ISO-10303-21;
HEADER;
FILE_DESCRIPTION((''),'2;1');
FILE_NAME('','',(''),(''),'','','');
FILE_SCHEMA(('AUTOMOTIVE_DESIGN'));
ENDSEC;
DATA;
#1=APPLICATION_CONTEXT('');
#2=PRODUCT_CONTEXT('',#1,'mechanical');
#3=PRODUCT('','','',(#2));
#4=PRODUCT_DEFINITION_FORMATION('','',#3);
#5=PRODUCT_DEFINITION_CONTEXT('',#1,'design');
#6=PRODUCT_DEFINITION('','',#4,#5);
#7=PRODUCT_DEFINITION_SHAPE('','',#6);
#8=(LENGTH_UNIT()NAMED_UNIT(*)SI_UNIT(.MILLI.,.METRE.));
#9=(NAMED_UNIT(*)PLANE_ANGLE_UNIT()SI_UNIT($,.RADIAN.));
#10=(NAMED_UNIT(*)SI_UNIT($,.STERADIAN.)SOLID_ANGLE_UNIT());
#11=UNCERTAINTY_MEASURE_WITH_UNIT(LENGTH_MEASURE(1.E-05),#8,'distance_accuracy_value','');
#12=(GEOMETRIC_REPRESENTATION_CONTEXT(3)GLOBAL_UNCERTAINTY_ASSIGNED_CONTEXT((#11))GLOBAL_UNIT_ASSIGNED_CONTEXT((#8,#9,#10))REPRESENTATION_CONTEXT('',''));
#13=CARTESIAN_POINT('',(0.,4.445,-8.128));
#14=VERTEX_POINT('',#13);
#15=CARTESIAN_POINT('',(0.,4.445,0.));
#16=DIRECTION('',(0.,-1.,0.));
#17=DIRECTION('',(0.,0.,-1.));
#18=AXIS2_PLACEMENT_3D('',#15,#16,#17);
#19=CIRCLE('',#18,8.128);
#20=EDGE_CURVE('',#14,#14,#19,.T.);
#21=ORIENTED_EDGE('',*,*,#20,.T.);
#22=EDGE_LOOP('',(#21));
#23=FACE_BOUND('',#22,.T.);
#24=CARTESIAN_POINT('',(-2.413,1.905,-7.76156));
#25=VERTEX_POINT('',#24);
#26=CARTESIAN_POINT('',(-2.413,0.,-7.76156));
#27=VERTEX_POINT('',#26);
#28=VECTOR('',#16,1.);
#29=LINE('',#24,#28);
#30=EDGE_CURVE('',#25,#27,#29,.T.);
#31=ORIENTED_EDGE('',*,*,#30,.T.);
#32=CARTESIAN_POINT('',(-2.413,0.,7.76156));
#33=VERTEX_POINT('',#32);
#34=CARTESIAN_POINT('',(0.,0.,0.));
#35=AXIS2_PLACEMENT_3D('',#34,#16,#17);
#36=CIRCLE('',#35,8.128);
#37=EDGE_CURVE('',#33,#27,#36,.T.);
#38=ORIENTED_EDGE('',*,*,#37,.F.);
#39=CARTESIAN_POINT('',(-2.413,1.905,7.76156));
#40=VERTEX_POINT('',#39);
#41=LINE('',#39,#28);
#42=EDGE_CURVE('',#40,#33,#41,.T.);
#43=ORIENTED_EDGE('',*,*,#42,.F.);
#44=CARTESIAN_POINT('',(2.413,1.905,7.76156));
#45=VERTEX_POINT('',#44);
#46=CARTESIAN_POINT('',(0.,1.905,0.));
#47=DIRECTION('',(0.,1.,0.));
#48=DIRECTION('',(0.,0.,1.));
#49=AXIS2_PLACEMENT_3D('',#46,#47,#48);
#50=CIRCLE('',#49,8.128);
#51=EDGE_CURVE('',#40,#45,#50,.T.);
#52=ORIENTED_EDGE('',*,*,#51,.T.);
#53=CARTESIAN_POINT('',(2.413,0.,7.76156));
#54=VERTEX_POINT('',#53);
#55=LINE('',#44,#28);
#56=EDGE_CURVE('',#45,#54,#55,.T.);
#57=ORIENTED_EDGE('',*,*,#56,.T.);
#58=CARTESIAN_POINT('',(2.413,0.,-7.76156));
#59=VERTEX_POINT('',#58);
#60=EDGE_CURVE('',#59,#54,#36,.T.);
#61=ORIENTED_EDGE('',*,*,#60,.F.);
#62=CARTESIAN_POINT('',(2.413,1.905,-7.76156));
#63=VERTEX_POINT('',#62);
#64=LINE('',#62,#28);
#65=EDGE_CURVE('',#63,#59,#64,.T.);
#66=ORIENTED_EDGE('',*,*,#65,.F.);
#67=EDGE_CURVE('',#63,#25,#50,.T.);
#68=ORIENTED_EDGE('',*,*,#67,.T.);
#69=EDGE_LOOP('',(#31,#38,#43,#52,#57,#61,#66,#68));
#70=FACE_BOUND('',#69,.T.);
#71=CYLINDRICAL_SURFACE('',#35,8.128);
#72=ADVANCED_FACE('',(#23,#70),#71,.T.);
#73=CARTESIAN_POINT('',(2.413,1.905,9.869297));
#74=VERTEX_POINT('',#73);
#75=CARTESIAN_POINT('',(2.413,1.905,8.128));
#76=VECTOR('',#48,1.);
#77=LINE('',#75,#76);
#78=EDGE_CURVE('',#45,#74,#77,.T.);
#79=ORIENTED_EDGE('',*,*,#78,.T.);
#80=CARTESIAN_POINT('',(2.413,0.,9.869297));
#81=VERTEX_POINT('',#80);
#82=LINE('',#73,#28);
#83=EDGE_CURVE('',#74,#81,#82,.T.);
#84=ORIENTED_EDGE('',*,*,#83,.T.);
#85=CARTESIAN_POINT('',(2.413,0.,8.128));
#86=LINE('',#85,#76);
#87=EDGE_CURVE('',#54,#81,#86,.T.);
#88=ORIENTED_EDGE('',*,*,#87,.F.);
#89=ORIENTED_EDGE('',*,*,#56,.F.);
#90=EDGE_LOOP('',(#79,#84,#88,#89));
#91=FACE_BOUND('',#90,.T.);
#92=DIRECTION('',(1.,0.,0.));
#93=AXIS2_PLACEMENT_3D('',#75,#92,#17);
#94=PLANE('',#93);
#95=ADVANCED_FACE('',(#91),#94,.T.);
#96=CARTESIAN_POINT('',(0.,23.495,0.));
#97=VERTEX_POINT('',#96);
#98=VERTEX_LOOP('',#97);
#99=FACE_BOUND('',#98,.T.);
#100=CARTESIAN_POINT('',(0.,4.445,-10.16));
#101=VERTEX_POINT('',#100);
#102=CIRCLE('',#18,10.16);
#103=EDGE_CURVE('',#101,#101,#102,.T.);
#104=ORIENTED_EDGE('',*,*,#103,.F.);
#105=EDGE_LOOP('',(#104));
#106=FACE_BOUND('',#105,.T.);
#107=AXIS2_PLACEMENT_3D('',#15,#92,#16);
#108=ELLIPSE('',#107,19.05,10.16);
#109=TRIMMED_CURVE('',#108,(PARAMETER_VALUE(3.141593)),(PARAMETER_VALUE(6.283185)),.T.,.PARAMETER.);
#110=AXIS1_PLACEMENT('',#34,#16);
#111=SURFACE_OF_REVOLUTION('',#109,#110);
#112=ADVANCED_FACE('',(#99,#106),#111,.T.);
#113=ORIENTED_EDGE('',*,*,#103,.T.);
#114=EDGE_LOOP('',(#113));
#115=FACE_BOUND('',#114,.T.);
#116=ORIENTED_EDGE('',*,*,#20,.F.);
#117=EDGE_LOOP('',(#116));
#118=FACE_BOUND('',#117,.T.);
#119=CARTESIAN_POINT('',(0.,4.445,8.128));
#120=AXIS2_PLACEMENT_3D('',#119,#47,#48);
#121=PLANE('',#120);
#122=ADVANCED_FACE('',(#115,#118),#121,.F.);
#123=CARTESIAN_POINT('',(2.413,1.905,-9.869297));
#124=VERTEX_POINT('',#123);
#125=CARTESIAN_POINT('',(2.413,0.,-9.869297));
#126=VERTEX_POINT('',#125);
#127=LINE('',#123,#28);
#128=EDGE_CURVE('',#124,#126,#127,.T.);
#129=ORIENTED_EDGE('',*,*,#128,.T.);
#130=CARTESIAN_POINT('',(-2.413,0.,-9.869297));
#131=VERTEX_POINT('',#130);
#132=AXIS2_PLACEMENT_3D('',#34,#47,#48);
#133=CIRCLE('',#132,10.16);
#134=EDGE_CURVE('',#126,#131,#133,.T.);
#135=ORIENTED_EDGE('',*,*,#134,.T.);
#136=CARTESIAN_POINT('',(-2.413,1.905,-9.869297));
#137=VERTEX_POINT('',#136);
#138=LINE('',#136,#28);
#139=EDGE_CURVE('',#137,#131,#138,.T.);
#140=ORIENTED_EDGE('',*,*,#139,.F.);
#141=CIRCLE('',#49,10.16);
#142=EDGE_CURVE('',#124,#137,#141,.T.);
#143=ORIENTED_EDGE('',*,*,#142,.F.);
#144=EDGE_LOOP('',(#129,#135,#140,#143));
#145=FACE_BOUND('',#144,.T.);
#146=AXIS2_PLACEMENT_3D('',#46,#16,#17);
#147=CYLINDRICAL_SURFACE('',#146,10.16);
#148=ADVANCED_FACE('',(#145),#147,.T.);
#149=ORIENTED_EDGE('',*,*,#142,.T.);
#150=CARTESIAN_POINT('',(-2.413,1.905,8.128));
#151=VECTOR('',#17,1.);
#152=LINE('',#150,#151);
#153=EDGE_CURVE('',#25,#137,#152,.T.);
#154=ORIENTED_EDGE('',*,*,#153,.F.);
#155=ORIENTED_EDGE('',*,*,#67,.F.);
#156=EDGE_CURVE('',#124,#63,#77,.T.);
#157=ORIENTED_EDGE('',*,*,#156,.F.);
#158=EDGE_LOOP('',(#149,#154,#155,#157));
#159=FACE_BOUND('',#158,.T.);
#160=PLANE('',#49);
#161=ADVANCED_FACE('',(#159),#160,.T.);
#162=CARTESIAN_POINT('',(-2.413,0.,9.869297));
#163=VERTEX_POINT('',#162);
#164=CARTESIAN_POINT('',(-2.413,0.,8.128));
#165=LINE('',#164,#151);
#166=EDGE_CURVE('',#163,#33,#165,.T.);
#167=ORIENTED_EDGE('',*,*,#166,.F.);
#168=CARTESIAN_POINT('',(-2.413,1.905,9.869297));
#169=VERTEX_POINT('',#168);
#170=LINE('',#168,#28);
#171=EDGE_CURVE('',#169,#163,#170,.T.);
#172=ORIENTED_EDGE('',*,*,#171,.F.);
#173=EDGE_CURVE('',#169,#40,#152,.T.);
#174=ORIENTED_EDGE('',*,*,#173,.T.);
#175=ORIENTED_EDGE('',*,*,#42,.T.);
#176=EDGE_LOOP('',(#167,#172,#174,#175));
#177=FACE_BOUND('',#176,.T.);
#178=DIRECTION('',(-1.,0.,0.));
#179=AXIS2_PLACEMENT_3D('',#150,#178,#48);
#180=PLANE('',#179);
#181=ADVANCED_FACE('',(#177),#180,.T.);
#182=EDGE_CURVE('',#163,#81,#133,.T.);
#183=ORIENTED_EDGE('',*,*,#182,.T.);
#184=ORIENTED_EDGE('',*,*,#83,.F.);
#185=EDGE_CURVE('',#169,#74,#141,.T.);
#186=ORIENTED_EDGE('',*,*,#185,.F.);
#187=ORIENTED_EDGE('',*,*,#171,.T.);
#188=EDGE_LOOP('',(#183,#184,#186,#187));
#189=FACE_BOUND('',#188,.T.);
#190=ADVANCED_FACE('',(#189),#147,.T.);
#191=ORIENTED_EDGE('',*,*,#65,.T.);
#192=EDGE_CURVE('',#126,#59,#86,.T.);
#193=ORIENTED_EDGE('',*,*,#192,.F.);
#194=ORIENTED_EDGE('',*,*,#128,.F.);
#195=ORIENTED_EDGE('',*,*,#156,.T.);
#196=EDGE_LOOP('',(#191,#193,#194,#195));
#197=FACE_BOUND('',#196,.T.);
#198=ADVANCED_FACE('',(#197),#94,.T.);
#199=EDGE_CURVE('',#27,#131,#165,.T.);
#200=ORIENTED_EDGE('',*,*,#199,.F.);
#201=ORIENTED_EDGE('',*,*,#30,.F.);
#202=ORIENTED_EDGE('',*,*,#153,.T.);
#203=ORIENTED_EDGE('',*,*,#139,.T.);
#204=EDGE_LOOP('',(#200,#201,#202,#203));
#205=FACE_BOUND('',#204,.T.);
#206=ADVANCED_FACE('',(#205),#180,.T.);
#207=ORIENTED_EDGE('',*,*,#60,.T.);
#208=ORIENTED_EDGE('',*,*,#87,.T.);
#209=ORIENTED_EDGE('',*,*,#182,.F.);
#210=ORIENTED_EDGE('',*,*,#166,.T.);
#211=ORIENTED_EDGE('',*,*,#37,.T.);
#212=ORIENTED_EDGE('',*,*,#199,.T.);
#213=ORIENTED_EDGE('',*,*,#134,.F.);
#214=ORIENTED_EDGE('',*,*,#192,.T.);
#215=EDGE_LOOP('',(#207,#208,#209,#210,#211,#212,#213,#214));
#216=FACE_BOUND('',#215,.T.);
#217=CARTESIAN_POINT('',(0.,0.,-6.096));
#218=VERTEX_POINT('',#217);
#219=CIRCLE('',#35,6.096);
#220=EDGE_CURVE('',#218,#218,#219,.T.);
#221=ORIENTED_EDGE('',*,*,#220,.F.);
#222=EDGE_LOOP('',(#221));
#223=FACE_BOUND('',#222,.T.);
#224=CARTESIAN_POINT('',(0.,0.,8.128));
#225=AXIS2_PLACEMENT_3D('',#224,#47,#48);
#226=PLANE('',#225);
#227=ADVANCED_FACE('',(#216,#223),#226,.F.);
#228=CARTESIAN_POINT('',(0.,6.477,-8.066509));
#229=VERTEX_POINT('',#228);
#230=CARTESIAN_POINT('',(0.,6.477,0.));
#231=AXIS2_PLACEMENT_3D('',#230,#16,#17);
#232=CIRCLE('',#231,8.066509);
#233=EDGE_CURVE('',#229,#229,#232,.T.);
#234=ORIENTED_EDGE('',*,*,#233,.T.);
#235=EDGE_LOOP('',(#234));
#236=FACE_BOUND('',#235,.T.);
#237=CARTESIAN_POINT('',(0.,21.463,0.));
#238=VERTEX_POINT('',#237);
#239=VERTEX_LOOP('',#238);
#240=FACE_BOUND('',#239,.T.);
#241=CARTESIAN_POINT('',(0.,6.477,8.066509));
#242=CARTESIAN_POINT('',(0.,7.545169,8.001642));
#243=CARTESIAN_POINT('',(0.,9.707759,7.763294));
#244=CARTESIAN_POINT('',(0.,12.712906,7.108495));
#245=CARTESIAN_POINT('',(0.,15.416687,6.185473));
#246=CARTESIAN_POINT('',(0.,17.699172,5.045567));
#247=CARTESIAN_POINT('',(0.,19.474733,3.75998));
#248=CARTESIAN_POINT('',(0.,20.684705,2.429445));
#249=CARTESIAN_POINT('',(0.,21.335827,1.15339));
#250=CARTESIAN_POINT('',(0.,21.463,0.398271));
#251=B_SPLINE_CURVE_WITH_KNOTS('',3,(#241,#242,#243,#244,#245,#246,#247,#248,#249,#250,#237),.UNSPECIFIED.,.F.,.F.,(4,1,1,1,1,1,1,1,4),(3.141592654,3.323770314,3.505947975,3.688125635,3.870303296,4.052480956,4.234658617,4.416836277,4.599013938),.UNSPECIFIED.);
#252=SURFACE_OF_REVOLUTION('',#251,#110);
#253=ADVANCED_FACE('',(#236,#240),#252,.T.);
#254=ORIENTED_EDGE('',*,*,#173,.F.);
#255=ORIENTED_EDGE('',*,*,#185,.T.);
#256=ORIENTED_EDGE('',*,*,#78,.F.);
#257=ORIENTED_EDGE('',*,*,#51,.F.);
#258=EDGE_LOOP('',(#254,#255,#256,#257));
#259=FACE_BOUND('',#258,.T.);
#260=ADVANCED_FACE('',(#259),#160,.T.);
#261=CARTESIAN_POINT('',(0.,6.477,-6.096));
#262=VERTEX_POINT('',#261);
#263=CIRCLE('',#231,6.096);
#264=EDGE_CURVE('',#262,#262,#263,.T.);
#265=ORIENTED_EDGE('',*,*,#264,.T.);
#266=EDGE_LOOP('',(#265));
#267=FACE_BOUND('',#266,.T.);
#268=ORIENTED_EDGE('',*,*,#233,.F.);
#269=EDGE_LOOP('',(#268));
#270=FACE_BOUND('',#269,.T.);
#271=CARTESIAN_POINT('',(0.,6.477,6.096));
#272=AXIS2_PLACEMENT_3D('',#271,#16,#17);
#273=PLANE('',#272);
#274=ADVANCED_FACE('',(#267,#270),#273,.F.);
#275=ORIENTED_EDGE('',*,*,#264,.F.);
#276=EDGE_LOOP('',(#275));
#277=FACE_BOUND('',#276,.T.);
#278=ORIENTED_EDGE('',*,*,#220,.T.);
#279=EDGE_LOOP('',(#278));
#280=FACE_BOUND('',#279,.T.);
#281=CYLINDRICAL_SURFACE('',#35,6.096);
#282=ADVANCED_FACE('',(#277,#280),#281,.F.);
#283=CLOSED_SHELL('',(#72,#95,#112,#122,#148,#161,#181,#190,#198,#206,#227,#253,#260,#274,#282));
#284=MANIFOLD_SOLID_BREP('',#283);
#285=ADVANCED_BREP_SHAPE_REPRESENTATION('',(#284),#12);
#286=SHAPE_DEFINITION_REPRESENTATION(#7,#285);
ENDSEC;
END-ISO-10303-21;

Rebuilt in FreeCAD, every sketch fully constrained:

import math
import FreeCAD as App
import Part
import Sketcher
Q = App.Units.Quantity

doc = App.newDocument("Part")
params = doc.addObject("Spreadsheet::Sheet", "Params")
for row, (alias, value) in enumerate([
    ("sketch1_height", "0.08 in"),
    ("sketch1_height2", "0.08 in"),
    ("revolution_angle", "360 deg"),
    ("sketch2_radius", "0.4 in"),
    ("sketch2_radius2", "0.32 in"),
    ("pad1_length", "0.075 in"),
], start=1):
    params.set(f"A{row}", alias)
    params.set(f"B{row}", "=" + value)
    params.setAlias(f"B{row}", alias)

body = doc.addObject("PartDesign::Body", "Body")

# Sketch on YZ plane
sketch1 = body.newObject("Sketcher::SketchObject", "Sketch")
sketch1.AttachmentSupport = (doc.getObject("YZ_Plane"), [""])
sketch1.MapMode = "FlatFace"
sketch1.addGeometry([
    Part.LineSegment(App.Vector(4.445, 8.128, 0), App.Vector(0, 8.128, 0)),  # 0
    Part.LineSegment(App.Vector(0, 8.128, 0), App.Vector(0, 6.096, 0)),  # 1
    Part.LineSegment(App.Vector(0, 6.096, 0), App.Vector(6.477, 6.096, 0)),  # 2
    Part.LineSegment(App.Vector(6.477, 6.096, 0), App.Vector(6.477, 8.066509, 0)),  # 3
    Part.BSplineCurve([App.Vector(21.463, 0, 0), App.Vector(21.463, 0.398271, 0), App.Vector(21.335827, 1.15339, 0), App.Vector(20.684705, 2.429445, 0), App.Vector(19.474733, 3.75998, 0), App.Vector(17.699172, 5.045567, 0), App.Vector(15.416687, 6.185473, 0), App.Vector(12.712906, 7.108495, 0), App.Vector(9.707759, 7.763294, 0), App.Vector(7.545169, 8.001642, 0), App.Vector(6.477, 8.066509, 0)], [4, 1, 1, 1, 1, 1, 1, 1, 4], [3.141592654, 3.323770314, 3.505947975, 3.688125635, 3.870303296, 4.052480956, 4.234658617, 4.416836277, 4.599013938], False, 3, [1, 1, 1, 1, 1, 1, 1, 1, 1, 1, 1], False),  # 4
    Part.LineSegment(App.Vector(21.463, 0, 0), App.Vector(23.495, 0, 0)),  # 5
    Part.BSplineCurve([App.Vector(23.495, 0, 0), App.Vector(23.495, 10.16, 0), App.Vector(4.445, 10.16, 0)], [3, 3], [3.141592654, 4.71238898], False, 2, [1, 0.707106781, 1], False),  # 6
    Part.LineSegment(App.Vector(4.445, 10.16, 0), App.Vector(4.445, 8.128, 0)),  # 7
], False)
sketch1.addConstraint([
    Sketcher.Constraint("Block", 4),
    Sketcher.Constraint("Block", 6),
    Sketcher.Constraint("Coincident", 0, 2, 1, 1),
    Sketcher.Constraint("Coincident", 1, 2, 2, 1),
    Sketcher.Constraint("Coincident", 2, 2, 3, 1),
    Sketcher.Constraint("Coincident", 3, 2, 4, 2),
    Sketcher.Constraint("Coincident", 4, 1, 5, 1),
    Sketcher.Constraint("Coincident", 5, 2, 6, 1),
    Sketcher.Constraint("Coincident", 6, 2, 7, 1),
    Sketcher.Constraint("Coincident", 7, 2, 0, 1),
    Sketcher.Constraint("Horizontal", 0),
    Sketcher.Constraint("Vertical", 1),
    Sketcher.Constraint("Horizontal", 2),
    Sketcher.Constraint("Vertical", 3),
    Sketcher.Constraint("Vertical", 7),
    Sketcher.Constraint("PointOnObject", 0, 2, -2),
    Sketcher.Constraint("DistanceY", 1, 2, 1, 1, Q("0.08 in")),
    Sketcher.Constraint("DistanceY", 7, 2, 7, 1, Q("0.08 in")),
])
sketch1.setExpression("Constraints[16]", "Params.sketch1_height")
sketch1.setExpression("Constraints[17]", "Params.sketch1_height2")
revolution = body.newObject("PartDesign::Revolution", "Revolution")
revolution.Profile = sketch1
revolution.ReferenceAxis = (sketch1, ["H_Axis"])
revolution.setExpression("Angle", "Params.revolution_angle")

# Sketch on XZ plane
sketch2 = body.newObject("Sketcher::SketchObject", "Sketch001")
sketch2.AttachmentSupport = (doc.getObject("XZ_Plane"), [""])
sketch2.MapMode = "FlatFace"
sketch2.AttachmentOffset = App.Placement(App.Vector(0, 0, -0.075 * 25.4), App.Rotation())
sketch2.addGeometry([
    Part.LineSegment(App.Vector(-2.4, 9.9, 0), App.Vector(-2.4, 7.8, 0)),  # 0
    Part.ArcOfCircle(Part.Circle(App.Vector(0, 0, 0), App.Vector(0, 0, 1), 8.1), math.radians(73), math.radians(107)),  # 1
    Part.LineSegment(App.Vector(2.4, 7.8, 0), App.Vector(2.4, 9.9, 0)),  # 2
    Part.ArcOfCircle(Part.Circle(App.Vector(0, 0, 0), App.Vector(0, 0, 1), 10.2), math.radians(76), math.radians(104)),  # 3
    Part.LineSegment(App.Vector(2.4, -9.9, 0), App.Vector(2.4, -7.8, 0)),  # 4
    Part.ArcOfCircle(Part.Circle(App.Vector(0, 0, 0), App.Vector(0, 0, 1), 8.1), math.radians(-107), math.radians(-73)),  # 5
    Part.LineSegment(App.Vector(-2.4, -7.8, 0), App.Vector(-2.4, -9.9, 0)),  # 6
    Part.ArcOfCircle(Part.Circle(App.Vector(0, 0, 0), App.Vector(0, 0, 1), 10.2), math.radians(-104), math.radians(-76)),  # 7
], False)
sketch2.addConstraint([
    Sketcher.Constraint("Coincident", 0, 2, 1, 2),
    Sketcher.Constraint("Coincident", 1, 1, 2, 1),
    Sketcher.Constraint("Coincident", 2, 2, 3, 1),
    Sketcher.Constraint("Coincident", 3, 2, 0, 1),
    Sketcher.Constraint("Coincident", 4, 2, 5, 2),
    Sketcher.Constraint("Coincident", 5, 1, 6, 1),
    Sketcher.Constraint("Coincident", 6, 2, 7, 1),
    Sketcher.Constraint("Coincident", 7, 2, 4, 1),
    Sketcher.Constraint("Vertical", 0),
    Sketcher.Constraint("Vertical", 2),
    Sketcher.Constraint("Vertical", 4),
    Sketcher.Constraint("Vertical", 6),
    Sketcher.Constraint("Coincident", 1, 3, -1, 1),
    Sketcher.Constraint("Coincident", 3, 3, -1, 1),
    Sketcher.Constraint("Coincident", 5, 3, -1, 1),
    Sketcher.Constraint("Coincident", 7, 3, -1, 1),
    Sketcher.Constraint("Equal", 1, 5),
    Sketcher.Constraint("Equal", 3, 7),
    Sketcher.Constraint("Horizontal", 0, 2, 1, 1),
    Sketcher.Constraint("Horizontal", 4, 2, 5, 1),
    Sketcher.Constraint("Vertical", 2, 2, 4, 2),
    Sketcher.Constraint("Radius", 3, Q("0.4 in")),
    Sketcher.Constraint("Radius", 1, Q("0.32 in")),
    Sketcher.Constraint("DistanceX", 0, 2, 1, 1, Q("0.19 in")),
])
sketch2.setExpression("Constraints[21]", "Params.sketch2_radius")
sketch2.setExpression("Constraints[22]", "Params.sketch2_radius2")
pad1 = body.newObject("PartDesign::Pad", "Pad")
pad1.Profile = sketch2
pad1.setExpression("Length", "Params.pad1_length")

doc.recompute()
